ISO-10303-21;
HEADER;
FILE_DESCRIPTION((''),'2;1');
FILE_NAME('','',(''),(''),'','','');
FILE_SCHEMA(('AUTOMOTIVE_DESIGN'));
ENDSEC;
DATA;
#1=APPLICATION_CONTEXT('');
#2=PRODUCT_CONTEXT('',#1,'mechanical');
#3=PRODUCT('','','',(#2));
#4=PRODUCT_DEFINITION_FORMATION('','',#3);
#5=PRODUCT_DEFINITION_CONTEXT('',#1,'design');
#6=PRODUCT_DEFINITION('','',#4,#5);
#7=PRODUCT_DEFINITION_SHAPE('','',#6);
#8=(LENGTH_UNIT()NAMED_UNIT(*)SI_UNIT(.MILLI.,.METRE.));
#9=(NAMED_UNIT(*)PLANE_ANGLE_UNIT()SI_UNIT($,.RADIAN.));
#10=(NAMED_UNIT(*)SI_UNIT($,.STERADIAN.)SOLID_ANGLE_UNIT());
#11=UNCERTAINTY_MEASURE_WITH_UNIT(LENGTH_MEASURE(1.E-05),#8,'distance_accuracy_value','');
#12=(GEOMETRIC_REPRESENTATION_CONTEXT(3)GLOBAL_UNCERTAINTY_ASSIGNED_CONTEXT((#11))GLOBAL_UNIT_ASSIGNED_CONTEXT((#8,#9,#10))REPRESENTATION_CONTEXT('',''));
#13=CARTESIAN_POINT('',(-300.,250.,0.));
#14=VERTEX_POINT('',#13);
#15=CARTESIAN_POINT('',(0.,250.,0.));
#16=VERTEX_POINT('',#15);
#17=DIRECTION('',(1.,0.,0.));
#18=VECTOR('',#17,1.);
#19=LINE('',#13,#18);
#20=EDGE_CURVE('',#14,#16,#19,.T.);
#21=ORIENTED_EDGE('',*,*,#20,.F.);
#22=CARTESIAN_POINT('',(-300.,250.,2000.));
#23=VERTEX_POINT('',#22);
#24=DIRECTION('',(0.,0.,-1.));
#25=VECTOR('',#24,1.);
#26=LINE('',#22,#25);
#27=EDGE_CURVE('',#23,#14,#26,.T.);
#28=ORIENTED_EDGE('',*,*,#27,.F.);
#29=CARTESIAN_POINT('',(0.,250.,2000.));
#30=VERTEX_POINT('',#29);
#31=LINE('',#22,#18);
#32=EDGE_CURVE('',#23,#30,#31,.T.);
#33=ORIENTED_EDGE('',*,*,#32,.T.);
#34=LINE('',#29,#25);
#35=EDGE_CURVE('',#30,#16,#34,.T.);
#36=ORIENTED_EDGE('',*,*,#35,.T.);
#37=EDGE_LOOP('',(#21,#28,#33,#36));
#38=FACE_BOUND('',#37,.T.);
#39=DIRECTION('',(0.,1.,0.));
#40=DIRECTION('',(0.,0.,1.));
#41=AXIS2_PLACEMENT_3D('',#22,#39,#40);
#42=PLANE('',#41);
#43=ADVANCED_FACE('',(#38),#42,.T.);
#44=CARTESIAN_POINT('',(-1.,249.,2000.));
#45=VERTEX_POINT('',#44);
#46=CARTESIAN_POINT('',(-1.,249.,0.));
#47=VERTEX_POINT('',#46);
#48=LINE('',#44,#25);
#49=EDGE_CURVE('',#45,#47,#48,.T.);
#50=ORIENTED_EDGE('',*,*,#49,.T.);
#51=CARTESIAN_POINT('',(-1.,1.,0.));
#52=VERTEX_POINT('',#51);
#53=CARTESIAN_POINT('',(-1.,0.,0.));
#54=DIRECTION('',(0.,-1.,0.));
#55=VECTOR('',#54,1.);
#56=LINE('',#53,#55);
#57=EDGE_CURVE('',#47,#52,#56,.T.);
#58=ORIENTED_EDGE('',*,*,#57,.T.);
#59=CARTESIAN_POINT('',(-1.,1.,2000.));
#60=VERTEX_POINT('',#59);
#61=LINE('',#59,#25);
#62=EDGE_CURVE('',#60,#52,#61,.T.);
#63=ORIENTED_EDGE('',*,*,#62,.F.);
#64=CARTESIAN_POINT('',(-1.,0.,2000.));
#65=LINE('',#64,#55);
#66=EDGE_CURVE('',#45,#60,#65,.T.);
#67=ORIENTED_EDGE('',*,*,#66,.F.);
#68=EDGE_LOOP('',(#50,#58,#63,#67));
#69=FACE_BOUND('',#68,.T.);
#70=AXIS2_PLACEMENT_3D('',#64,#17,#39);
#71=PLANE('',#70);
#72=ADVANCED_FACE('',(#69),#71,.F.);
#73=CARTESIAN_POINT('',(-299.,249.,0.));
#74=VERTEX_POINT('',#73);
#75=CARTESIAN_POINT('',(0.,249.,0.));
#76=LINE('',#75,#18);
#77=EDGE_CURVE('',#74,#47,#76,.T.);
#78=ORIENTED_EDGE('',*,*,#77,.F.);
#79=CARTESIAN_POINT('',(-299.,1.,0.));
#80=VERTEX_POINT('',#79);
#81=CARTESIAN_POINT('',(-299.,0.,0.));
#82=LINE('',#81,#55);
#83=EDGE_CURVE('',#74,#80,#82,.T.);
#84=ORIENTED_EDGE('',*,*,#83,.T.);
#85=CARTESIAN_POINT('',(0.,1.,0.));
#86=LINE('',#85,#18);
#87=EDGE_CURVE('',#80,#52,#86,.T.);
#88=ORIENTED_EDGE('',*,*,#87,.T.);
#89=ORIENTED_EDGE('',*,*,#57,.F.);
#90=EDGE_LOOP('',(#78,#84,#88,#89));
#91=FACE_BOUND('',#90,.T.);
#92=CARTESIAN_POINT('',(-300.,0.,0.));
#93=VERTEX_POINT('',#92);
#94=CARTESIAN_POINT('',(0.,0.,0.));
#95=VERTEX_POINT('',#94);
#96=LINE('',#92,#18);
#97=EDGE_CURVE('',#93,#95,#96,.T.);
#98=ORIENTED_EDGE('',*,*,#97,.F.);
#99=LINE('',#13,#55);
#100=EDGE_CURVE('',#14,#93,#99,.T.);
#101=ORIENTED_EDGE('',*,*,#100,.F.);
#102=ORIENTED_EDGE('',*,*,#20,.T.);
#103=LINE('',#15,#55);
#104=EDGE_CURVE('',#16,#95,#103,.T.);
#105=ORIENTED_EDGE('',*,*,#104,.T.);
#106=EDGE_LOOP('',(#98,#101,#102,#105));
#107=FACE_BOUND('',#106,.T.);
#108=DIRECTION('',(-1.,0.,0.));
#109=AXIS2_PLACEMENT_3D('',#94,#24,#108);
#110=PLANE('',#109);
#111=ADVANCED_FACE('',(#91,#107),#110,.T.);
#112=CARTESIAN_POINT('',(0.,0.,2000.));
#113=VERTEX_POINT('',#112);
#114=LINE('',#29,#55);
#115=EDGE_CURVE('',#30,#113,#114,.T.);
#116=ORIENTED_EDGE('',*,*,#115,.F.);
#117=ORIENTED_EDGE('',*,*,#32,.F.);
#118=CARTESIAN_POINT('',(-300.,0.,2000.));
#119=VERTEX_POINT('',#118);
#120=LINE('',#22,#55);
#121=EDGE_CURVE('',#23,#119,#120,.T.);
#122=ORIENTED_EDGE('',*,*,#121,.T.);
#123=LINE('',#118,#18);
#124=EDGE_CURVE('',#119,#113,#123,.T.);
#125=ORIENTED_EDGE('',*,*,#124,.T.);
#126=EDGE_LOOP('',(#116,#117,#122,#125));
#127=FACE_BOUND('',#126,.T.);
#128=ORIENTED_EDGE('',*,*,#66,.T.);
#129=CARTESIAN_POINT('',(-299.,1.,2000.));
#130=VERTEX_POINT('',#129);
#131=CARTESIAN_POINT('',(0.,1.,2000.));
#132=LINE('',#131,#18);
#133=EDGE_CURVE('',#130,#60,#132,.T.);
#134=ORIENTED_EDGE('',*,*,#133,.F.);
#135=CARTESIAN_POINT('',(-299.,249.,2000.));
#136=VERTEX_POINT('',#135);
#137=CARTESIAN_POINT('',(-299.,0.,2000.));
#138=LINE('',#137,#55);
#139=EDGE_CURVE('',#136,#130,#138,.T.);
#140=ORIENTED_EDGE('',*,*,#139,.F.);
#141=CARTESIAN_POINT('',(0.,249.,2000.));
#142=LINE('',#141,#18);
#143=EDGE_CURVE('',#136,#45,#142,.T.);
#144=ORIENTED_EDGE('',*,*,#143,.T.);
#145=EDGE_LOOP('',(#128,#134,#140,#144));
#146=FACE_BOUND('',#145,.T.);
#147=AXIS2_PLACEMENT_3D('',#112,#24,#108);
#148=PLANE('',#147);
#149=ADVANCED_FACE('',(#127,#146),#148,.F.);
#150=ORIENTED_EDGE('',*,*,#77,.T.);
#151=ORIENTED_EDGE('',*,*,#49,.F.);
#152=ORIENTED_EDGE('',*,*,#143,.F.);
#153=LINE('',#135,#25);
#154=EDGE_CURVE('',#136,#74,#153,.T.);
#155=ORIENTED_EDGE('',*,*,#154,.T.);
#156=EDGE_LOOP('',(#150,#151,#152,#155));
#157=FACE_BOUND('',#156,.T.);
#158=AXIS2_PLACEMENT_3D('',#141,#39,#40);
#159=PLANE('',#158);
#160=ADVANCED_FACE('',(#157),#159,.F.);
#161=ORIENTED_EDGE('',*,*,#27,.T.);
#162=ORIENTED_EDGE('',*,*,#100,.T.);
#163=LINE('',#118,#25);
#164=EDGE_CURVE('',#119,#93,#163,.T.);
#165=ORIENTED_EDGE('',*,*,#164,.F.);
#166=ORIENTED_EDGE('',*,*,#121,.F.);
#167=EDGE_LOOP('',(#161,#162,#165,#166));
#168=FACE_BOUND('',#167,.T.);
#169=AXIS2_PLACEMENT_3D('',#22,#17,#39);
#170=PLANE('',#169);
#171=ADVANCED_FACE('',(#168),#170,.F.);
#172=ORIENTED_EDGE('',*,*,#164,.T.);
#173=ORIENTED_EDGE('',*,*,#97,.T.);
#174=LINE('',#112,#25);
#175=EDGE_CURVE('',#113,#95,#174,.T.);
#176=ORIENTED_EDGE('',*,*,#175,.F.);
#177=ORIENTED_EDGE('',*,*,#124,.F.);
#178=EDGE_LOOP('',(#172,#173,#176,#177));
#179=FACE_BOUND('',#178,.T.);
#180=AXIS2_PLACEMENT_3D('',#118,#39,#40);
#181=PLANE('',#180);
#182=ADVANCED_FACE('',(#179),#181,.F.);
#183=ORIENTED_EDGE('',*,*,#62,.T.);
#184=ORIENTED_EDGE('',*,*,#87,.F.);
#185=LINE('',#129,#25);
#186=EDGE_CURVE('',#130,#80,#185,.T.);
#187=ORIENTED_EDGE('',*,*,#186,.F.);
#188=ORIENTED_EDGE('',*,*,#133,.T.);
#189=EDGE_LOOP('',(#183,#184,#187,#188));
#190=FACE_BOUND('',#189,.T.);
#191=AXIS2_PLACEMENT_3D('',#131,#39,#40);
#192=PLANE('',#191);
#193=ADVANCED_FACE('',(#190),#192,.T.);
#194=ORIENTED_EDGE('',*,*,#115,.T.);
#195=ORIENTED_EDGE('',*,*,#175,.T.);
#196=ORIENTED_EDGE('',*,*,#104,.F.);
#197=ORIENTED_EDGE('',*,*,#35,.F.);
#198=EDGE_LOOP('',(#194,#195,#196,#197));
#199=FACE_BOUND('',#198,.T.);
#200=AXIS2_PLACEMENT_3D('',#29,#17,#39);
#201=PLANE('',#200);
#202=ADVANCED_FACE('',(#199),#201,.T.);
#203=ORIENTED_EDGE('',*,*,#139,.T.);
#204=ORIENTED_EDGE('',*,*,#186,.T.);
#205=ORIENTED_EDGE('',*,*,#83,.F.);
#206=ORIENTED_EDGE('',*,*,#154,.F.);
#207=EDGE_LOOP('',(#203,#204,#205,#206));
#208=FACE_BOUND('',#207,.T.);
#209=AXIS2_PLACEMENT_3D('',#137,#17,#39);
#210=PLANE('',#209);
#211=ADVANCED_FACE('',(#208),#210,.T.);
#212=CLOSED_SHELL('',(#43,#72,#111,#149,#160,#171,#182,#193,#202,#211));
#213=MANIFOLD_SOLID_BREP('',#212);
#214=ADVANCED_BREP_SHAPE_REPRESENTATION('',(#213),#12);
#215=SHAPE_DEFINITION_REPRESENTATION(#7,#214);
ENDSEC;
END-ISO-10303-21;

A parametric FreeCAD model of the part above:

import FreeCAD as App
import Part
import Sketcher
from FreeCAD import Vector
Q = App.Units.Quantity


def add_polygon(sketch, points):
    """Adds a closed chain of lines whose ends are joined by coincident constraints."""
    first, n = sketch.GeometryCount, len(points)
    for a, b in zip(points, points[1:] + points[:1]):
        sketch.addGeometry(Part.LineSegment(App.Vector(*a, 0), App.Vector(*b, 0)), False)
    for i in range(n):
        sketch.addConstraint(Sketcher.Constraint("Coincident", first + i, 2, first + (i + 1) % n, 1))

doc = App.newDocument("Part")
body = doc.addObject("PartDesign::Body", "Body")

# Sketch on XY plane
sketch1 = doc.addObject("Sketcher::SketchObject", "Sketch")
body.addObject(sketch1)
sketch1.AttachmentSupport = (doc.XY_Plane, [""])
sketch1.MapMode = "FlatFace"
add_polygon(sketch1, [(-300, 250), (-300, 0), (0, 0), (0, 250)])  # lines 0-3
add_polygon(sketch1, [(-1, 1), (-299, 1), (-299, 249), (-1, 249)])  # lines 4-7
sketch1.addConstraint(Sketcher.Constraint("Vertical", 0))
sketch1.addConstraint(Sketcher.Constraint("Horizontal", 1))
sketch1.addConstraint(Sketcher.Constraint("Vertical", 2))
sketch1.addConstraint(Sketcher.Constraint("Horizontal", 3))
sketch1.addConstraint(Sketcher.Constraint("Horizontal", 4))
sketch1.addConstraint(Sketcher.Constraint("Vertical", 5))
sketch1.addConstraint(Sketcher.Constraint("Horizontal", 6))
sketch1.addConstraint(Sketcher.Constraint("Vertical", 7))
sketch1.addConstraint(Sketcher.Constraint("Coincident", 1, 2, -1, 1))
sketch1.addConstraint(Sketcher.Constraint("DistanceX", 1, 1, 1, 2, Q("300 mm")))
sketch1.addConstraint(Sketcher.Constraint("DistanceX", 4, 2, 4, 1, Q("298 mm")))
sketch1.addConstraint(Sketcher.Constraint("DistanceY", 0, 2, 0, 1, Q("250 mm")))
sketch1.addConstraint(Sketcher.Constraint("DistanceY", 5, 1, 5, 2, Q("248 mm")))
sketch1.addConstraint(Sketcher.Constraint("DistanceX", 4, 2, -1, 1, Q("299 mm")))
sketch1.addConstraint(Sketcher.Constraint("DistanceY", -1, 1, 4, 2, Q("1 mm")))
pad1 = doc.addObject("PartDesign::Pad", "Pad")
body.addObject(pad1)
pad1.Profile = sketch1
pad1.Length = 2000

doc.recompute()
